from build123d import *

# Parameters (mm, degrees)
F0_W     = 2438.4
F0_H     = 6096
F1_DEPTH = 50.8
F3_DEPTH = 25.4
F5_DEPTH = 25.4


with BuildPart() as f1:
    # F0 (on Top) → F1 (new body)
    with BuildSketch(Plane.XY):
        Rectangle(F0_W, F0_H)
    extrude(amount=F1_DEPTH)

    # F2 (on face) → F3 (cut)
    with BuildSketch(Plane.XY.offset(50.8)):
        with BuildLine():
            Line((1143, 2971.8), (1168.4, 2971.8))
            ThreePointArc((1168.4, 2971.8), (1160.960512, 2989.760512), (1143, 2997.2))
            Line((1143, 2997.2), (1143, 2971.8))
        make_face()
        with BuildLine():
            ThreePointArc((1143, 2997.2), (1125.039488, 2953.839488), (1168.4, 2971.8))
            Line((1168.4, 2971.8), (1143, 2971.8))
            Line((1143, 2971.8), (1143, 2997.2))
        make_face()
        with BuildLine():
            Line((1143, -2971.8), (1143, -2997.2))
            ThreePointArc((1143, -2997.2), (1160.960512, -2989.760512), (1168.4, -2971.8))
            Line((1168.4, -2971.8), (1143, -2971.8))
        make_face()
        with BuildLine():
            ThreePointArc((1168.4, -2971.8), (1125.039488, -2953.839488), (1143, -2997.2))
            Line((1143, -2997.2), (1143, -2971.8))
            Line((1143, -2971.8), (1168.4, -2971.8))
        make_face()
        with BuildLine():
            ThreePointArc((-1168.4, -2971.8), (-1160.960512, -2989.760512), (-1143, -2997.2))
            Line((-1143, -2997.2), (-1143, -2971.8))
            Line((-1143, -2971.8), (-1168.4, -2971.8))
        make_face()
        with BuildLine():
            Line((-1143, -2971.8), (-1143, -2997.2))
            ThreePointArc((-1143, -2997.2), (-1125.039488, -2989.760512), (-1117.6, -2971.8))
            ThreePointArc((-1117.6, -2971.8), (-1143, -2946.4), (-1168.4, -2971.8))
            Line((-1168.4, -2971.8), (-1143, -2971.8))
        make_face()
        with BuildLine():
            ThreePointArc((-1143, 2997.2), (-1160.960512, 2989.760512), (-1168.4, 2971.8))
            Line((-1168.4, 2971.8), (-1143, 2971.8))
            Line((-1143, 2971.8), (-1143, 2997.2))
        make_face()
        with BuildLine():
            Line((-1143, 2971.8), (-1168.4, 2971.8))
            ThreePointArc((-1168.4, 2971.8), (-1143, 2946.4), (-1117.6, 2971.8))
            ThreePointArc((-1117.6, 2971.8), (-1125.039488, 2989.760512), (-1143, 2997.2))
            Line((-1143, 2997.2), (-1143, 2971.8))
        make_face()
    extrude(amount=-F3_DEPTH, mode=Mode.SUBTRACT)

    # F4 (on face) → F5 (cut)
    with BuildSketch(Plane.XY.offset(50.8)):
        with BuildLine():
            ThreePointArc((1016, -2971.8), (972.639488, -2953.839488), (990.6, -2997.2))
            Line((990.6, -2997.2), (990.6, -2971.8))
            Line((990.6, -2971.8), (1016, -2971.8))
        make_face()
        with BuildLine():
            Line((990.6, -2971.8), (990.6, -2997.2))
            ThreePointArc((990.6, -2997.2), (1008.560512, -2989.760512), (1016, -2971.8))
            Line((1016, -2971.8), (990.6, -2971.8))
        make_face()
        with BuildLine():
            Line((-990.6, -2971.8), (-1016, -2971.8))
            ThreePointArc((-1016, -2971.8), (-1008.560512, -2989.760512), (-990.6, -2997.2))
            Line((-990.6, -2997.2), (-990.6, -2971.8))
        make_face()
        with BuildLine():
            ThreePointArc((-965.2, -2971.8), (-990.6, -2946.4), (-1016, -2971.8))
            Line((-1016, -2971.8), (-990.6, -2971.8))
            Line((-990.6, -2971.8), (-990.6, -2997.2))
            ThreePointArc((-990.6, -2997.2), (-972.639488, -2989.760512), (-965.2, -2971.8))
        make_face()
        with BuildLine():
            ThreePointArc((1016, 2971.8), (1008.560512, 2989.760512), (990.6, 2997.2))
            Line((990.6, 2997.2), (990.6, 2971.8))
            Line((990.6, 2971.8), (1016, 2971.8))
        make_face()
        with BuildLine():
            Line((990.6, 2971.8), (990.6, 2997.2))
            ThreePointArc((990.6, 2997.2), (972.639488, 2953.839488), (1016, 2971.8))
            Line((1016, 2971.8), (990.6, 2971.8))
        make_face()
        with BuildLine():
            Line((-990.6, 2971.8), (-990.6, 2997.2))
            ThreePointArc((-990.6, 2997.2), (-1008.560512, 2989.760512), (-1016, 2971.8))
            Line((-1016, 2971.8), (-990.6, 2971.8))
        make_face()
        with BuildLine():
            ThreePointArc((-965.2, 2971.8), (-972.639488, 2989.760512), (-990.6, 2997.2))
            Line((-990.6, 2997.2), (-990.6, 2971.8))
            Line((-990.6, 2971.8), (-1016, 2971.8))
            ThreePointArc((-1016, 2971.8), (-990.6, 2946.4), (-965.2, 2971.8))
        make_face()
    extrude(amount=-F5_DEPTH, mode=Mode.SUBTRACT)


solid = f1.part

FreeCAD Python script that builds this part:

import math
import FreeCAD as App
import Part
import Sketcher
from FreeCAD import Vector
Q = App.Units.Quantity

doc = App.newDocument("Part")
body = doc.addObject("PartDesign::Body", "Body")

# Sketch on XY plane
sketch1 = body.newObject("Sketcher::SketchObject", "Sketch")
sketch1.AttachmentSupport = (doc.getObject("XY_Plane"), [""])
sketch1.MapMode = "FlatFace"
sketch1.addGeometry([
    Part.LineSegment(Vector(-1219, 3048, 0), Vector(-1219, -3048, 0)),
    Part.LineSegment(Vector(-1219, -3048, 0), Vector(1219, -3048, 0)),
    Part.LineSegment(Vector(1219, -3048, 0), Vector(1219, 3048, 0)),
    Part.LineSegment(Vector(1219, 3048, 0), Vector(-1219, 3048, 0)),
], False)
sketch1.addConstraint([
    Sketcher.Constraint("Coincident", 0, 2, 1, 1),
    Sketcher.Constraint("Coincident", 1, 2, 2, 1),
    Sketcher.Constraint("Coincident", 2, 2, 3, 1),
    Sketcher.Constraint("Coincident", 3, 2, 0, 1),
    Sketcher.Constraint("Vertical", 0),
    Sketcher.Constraint("Horizontal", 1),
    Sketcher.Constraint("Vertical", 2),
    Sketcher.Constraint("Horizontal", 3),
    Sketcher.Constraint("Symmetric", 0, 2, 2, 2, -1, 1),
    Sketcher.Constraint("DistanceX", 1, 1, 1, 2, Q("96 in")),
    Sketcher.Constraint("DistanceY", 0, 2, 0, 1, Q("240 in")),
])
pad1 = body.newObject("PartDesign::Pad", "Pad")
pad1.Profile = sketch1
pad1.Length = Q("2 in")

# Sketch on XY plane
sketch2 = body.newObject("Sketcher::SketchObject", "Sketch001")
sketch2.AttachmentSupport = (doc.getObject("XY_Plane"), [""])
sketch2.MapMode = "FlatFace"
sketch2.AttachmentOffset = App.Placement(Vector(0, 0, 2 * 25.4), App.Rotation())
sketch2.addGeometry([
    Part.ArcOfCircle(Part.Circle(Vector(1143, 2972, 0), Vector(0, 0, 1), 25), math.radians(0), math.radians(90)),  # 0
    Part.ArcOfCircle(Part.Circle(Vector(1143, 2972, 0), Vector(0, 0, 1), 25), math.radians(90), math.radians(360)),  # 1
    Part.ArcOfCircle(Part.Circle(Vector(1143, -2972, 0), Vector(0, 0, 1), 25), math.radians(-90), math.radians(0)),  # 2
    Part.ArcOfCircle(Part.Circle(Vector(1143, -2972, 0), Vector(0, 0, 1), 25), math.radians(0), math.radians(270)),  # 3
    Part.ArcOfCircle(Part.Circle(Vector(-1143, -2972, 0), Vector(0, 0, 1), 25), math.radians(-180), math.radians(-90)),  # 4
    Part.ArcOfCircle(Part.Circle(Vector(-1143, -2972, 0), Vector(0, 0, 1), 25), math.radians(-90), math.radians(0)),  # 5
    Part.ArcOfCircle(Part.Circle(Vector(-1143, -2972, 0), Vector(0, 0, 1), 25), math.radians(0), math.radians(180)),  # 6
    Part.ArcOfCircle(Part.Circle(Vector(-1143, 2972, 0), Vector(0, 0, 1), 25), math.radians(90), math.radians(180)),  # 7
    Part.ArcOfCircle(Part.Circle(Vector(-1143, 2972, 0), Vector(0, 0, 1), 25), math.radians(180), math.radians(360)),  # 8
    Part.ArcOfCircle(Part.Circle(Vector(-1143, 2972, 0), Vector(0, 0, 1), 25), math.radians(0), math.radians(90)),  # 9
], False)
sketch2.addConstraint([
    Sketcher.Constraint("Tangent", 0, 1, 1, 2),
    Sketcher.Constraint("Coincident", 1, 1, 0, 2),
    Sketcher.Constraint("Tangent", 2, 1, 3, 2),
    Sketcher.Constraint("Coincident", 3, 1, 2, 2),
    Sketcher.Constraint("Tangent", 4, 2, 5, 1),
    Sketcher.Constraint("Tangent", 5, 2, 6, 1),
    Sketcher.Constraint("Tangent", 6, 2, 4, 1),
    Sketcher.Constraint("Tangent", 7, 2, 8, 1),
    Sketcher.Constraint("Tangent", 8, 2, 9, 1),
    Sketcher.Constraint("Tangent", 9, 2, 7, 1),
    Sketcher.Constraint("Equal", 1, 2),
    Sketcher.Constraint("Equal", 3, 4),
    Sketcher.Constraint("Equal", 6, 7),
    Sketcher.Constraint("Symmetric", 0, 3, 4, 3, -1, 1),
    Sketcher.Constraint("Symmetric", 2, 3, 7, 3, -1, 1),
    Sketcher.Constraint("Symmetric", 2, 3, 4, 3, -2),
    Sketcher.Constraint("Horizontal", 9, 3, 0, 1),
    Sketcher.Constraint("Horizontal", 6, 3, 3, 1),
    Sketcher.Constraint("Horizontal", 3, 1, 5, 2),
    Sketcher.Constraint("Horizontal", 5, 2, 6, 2),
    Sketcher.Constraint("Horizontal", 0, 1, 7, 2),
    Sketcher.Constraint("Horizontal", 7, 2, 8, 2),
    Sketcher.Constraint("Vertical", 3, 3, 1, 1),
    Sketcher.Constraint("Vertical", 1, 1, 2, 1),
    Sketcher.Constraint("Vertical", 9, 3, 4, 2),
    Sketcher.Constraint("Vertical", 4, 2, 9, 2),
    Sketcher.Constraint("Radius", 0, Q("1 in")),
    Sketcher.Constraint("DistanceX", -1, 1, 0, 3, Q("45 in")),
    Sketcher.Constraint("DistanceY", -1, 1, 0, 3, Q("117 in")),
])
pocket1 = body.newObject("PartDesign::Pocket", "Pocket")
pocket1.Profile = sketch2
pocket1.Length = Q("1 in")

# Sketch on XY plane
sketch3 = body.newObject("Sketcher::SketchObject", "Sketch002")
sketch3.AttachmentSupport = (doc.getObject("XY_Plane"), [""])
sketch3.MapMode = "FlatFace"
sketch3.AttachmentOffset = App.Placement(Vector(0, 0, 2 * 25.4), App.Rotation())
sketch3.addGeometry([
    Part.ArcOfCircle(Part.Circle(Vector(991, -2972, 0), Vector(0, 0, 1), 25), math.radians(0), math.radians(270)),  # 0
    Part.ArcOfCircle(Part.Circle(Vector(991, -2972, 0), Vector(0, 0, 1), 25), math.radians(-90), math.radians(0)),  # 1
    Part.ArcOfCircle(Part.Circle(Vector(-991, -2972, 0), Vector(0, 0, 1), 25), math.radians(-180), math.radians(-90)),  # 2
    Part.ArcOfCircle(Part.Circle(Vector(-991, -2972, 0), Vector(0, 0, 1), 25), math.radians(-90), math.radians(0)),  # 3
    Part.ArcOfCircle(Part.Circle(Vector(-991, -2972, 0), Vector(0, 0, 1), 25), math.radians(0), math.radians(180)),  # 4
    Part.ArcOfCircle(Part.Circle(Vector(991, 2972, 0), Vector(0, 0, 1), 25), math.radians(0), math.radians(90)),  # 5
    Part.ArcOfCircle(Part.Circle(Vector(991, 2972, 0), Vector(0, 0, 1), 25), math.radians(90), math.radians(360)),  # 6
    Part.ArcOfCircle(Part.Circle(Vector(-991, 2972, 0), Vector(0, 0, 1), 25), math.radians(90), math.radians(180)),  # 7
    Part.ArcOfCircle(Part.Circle(Vector(-991, 2972, 0), Vector(0, 0, 1), 25), math.radians(180), math.radians(360)),  # 8
    Part.ArcOfCircle(Part.Circle(Vector(-991, 2972, 0), Vector(0, 0, 1), 25), math.radians(0), math.radians(90)),  # 9
], False)
sketch3.addConstraint([
    Sketcher.Constraint("Tangent", 0, 1, 1, 2),
    Sketcher.Constraint("Coincident", 1, 1, 0, 2),
    Sketcher.Constraint("Tangent", 2, 2, 3, 1),
    Sketcher.Constraint("Tangent", 3, 2, 4, 1),
    Sketcher.Constraint("Tangent", 4, 2, 2, 1),
    Sketcher.Constraint("Tangent", 5, 1, 6, 2),
    Sketcher.Constraint("Coincident", 6, 1, 5, 2),
    Sketcher.Constraint("Tangent", 7, 2, 8, 1),
    Sketcher.Constraint("Tangent", 8, 2, 9, 1),
    Sketcher.Constraint("Tangent", 9, 2, 7, 1),
    Sketcher.Constraint("Equal", 1, 2),
    Sketcher.Constraint("Equal", 4, 5),
    Sketcher.Constraint("Equal", 6, 7),
    Sketcher.Constraint("Symmetric", 2, 3, 5, 3, -1, 1),
    Sketcher.Constraint("Symmetric", 0, 3, 7, 3, -1, 1),
    Sketcher.Constraint("Symmetric", 0, 3, 2, 3, -2),
    Sketcher.Constraint("Horizontal", 4, 3, 0, 1),
    Sketcher.Constraint("Horizontal", 0, 1, 3, 2),
    Sketcher.Constraint("Horizontal", 3, 2, 4, 2),
    Sketcher.Constraint("Horizontal", 9, 3, 5, 1),
    Sketcher.Constraint("Horizontal", 5, 1, 7, 2),
    Sketcher.Constraint("Horizontal", 7, 2, 8, 2),
    Sketcher.Constraint("Vertical", 6, 3, 1, 1),
    Sketcher.Constraint("Vertical", 9, 3, 2, 2),
    Sketcher.Constraint("Vertical", 1, 1, 6, 1),
    Sketcher.Constraint("Vertical", 2, 2, 9, 2),
    Sketcher.Constraint("Radius", 0, Q("1 in")),
    Sketcher.Constraint("DistanceX", -1, 1, 0, 3, Q("39 in")),
    Sketcher.Constraint("DistanceY", 0, 3, -1, 1, Q("117 in")),
])
pocket2 = body.newObject("PartDesign::Pocket", "Pocket001")
pocket2.Profile = sketch3
pocket2.Length = Q("1 in")

doc.recompute()
